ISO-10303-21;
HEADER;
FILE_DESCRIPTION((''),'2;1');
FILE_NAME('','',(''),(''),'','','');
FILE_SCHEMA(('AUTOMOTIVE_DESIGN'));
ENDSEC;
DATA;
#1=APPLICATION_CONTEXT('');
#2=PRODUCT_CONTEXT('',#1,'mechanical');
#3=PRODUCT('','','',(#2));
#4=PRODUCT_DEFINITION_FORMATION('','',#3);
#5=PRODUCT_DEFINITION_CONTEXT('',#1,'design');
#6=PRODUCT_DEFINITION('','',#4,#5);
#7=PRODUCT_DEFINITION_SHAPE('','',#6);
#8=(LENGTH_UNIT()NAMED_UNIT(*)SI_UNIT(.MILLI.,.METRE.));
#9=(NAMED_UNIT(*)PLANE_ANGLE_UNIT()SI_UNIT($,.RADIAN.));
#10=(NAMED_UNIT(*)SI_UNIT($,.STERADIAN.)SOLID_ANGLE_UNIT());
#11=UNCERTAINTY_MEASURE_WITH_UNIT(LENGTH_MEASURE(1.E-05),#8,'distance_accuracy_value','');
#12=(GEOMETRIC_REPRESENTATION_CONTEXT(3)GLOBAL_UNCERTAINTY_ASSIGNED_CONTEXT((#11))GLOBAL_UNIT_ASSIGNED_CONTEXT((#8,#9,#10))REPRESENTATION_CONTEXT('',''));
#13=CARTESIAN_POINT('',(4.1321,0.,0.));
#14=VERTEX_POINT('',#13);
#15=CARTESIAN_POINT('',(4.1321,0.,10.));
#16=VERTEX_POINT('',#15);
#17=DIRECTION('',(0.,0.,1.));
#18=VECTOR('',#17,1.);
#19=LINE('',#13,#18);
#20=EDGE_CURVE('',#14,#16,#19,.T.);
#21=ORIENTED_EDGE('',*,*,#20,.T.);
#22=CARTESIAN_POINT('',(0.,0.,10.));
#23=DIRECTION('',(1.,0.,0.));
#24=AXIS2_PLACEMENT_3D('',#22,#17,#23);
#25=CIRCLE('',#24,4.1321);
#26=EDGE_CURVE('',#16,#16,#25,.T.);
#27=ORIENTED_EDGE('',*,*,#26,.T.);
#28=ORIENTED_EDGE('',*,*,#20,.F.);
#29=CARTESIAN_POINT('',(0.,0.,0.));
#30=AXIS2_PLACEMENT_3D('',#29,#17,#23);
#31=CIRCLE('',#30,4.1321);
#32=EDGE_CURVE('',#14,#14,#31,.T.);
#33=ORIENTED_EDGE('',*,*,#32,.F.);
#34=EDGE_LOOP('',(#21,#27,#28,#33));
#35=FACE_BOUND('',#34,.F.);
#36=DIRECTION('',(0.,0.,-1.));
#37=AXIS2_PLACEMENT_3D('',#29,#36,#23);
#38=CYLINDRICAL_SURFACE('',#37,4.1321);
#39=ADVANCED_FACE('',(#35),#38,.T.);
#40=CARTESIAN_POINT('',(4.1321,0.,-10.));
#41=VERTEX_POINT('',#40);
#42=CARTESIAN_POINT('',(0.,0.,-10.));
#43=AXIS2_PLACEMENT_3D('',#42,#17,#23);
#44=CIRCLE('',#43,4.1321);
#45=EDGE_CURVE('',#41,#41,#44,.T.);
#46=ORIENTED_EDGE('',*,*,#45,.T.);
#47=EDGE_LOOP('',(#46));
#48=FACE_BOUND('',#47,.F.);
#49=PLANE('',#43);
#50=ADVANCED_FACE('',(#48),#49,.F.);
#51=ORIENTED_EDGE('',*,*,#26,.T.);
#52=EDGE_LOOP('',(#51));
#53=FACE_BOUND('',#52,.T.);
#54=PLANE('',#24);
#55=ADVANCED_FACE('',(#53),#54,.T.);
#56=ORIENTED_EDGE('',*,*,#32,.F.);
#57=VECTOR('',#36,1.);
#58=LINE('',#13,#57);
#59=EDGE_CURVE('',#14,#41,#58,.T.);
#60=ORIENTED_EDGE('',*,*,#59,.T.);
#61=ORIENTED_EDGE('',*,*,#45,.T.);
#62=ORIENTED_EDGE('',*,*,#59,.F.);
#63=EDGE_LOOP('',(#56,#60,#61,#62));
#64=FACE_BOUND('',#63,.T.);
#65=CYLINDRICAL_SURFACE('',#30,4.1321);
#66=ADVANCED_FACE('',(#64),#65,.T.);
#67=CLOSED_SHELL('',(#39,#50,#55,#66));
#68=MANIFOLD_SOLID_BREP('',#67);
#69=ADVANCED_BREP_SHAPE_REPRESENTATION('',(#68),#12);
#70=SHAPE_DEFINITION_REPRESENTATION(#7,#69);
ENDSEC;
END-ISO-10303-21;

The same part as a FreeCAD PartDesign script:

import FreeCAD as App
import Part
import Sketcher
Q = App.Units.Quantity

doc = App.newDocument("Part")
params = doc.addObject("Spreadsheet::Sheet", "Params")
for row, (alias, value) in enumerate([
    ("pad1_length", "20 mm"),
], start=1):
    params.set(f"A{row}", alias)
    params.set(f"B{row}", "=" + value)
    params.setAlias(f"B{row}", alias)

body = doc.addObject("PartDesign::Body", "Body")

sketch1 = body.newObject("Sketcher::SketchObject", "Sketch")
sketch1.AttachmentSupport = (doc.getObject("XY_Plane"), [""])
sketch1.MapMode = "FlatFace"
sketch1.addGeometry(Part.Circle(App.Vector(0, 0, 0), App.Vector(0, 0, 1), 4.1321), False)
sketch1.addConstraint([
    Sketcher.Constraint("Coincident", 0, 3, -1, 1),
    Sketcher.Constraint("Diameter", 0, Q("8.2642 mm")),
])
pad1 = body.newObject("PartDesign::Pad", "Pad")
pad1.Profile = sketch1
pad1.setExpression("Length", "Params.pad1_length")
pad1.Midplane = True

doc.recompute()
